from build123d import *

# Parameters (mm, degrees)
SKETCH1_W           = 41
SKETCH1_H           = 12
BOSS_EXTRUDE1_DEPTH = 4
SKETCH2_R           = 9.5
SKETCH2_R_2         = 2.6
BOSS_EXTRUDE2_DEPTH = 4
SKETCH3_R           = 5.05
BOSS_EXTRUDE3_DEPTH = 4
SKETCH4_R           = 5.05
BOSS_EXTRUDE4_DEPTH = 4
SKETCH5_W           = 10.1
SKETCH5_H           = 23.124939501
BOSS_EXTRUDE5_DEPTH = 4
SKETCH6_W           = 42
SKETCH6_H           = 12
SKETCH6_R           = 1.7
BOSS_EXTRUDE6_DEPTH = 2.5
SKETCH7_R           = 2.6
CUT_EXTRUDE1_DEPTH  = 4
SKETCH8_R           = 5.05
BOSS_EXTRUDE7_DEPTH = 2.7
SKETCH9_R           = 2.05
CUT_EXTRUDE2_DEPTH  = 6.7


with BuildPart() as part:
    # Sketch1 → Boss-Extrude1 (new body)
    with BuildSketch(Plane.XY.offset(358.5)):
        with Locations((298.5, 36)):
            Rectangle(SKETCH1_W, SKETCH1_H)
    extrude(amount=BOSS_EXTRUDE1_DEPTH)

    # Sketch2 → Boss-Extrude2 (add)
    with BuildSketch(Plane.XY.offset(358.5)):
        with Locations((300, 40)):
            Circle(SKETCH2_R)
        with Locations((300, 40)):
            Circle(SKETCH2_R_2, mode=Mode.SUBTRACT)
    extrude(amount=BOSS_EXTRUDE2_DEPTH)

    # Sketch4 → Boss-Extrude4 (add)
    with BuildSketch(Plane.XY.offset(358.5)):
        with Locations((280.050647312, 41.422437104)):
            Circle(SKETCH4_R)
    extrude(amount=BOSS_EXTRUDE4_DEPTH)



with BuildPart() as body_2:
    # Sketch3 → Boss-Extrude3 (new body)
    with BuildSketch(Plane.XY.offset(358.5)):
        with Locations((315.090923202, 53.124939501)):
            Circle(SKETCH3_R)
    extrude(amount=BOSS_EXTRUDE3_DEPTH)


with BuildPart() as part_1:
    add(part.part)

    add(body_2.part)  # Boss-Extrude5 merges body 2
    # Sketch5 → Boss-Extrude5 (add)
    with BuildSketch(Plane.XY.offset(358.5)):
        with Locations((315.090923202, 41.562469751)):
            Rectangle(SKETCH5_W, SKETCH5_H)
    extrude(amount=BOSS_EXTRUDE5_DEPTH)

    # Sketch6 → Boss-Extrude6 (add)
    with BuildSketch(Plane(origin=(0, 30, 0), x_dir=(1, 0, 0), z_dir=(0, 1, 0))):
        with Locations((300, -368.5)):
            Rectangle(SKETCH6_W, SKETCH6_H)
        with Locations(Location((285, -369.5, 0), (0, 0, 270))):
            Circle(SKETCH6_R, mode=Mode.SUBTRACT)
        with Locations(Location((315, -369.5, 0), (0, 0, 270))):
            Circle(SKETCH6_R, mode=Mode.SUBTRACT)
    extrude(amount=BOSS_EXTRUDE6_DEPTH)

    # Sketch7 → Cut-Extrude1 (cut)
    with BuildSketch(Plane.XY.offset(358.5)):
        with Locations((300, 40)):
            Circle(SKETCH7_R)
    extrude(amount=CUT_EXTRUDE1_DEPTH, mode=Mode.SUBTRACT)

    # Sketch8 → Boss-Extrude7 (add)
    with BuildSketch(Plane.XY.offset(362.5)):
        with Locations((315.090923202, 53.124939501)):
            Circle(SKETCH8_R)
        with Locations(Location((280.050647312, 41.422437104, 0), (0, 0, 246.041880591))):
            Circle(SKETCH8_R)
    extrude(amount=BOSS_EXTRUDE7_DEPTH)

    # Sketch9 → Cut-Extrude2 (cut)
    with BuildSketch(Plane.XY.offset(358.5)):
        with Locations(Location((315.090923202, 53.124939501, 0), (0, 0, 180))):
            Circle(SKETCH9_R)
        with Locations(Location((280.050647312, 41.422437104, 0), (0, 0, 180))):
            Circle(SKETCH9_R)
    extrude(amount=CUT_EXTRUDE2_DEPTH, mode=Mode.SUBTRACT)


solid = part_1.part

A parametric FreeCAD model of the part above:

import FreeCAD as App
import Part
import Sketcher
from FreeCAD import Vector
Q = App.Units.Quantity


def add_polygon(sketch, points):
    """Adds a closed chain of lines whose ends are joined by coincident constraints."""
    first, n = sketch.GeometryCount, len(points)
    for a, b in zip(points, points[1:] + points[:1]):
        sketch.addGeometry(Part.LineSegment(App.Vector(*a, 0), App.Vector(*b, 0)), False)
    for i in range(n):
        sketch.addConstraint(Sketcher.Constraint("Coincident", first + i, 2, first + (i + 1) % n, 1))

doc = App.newDocument("Part")
params = doc.addObject("Spreadsheet::Sheet", "Params")
for row, (alias, value) in enumerate([
    ("sketch1_width", "41 mm"),
    ("sketch1_height", "12 mm"),
    ("pad1_length", "4 mm"),
    ("sketch2_diameter", "19 mm"),
    ("sketch2_diameter2", "5.2 mm"),
    ("pad2_length", "4 mm"),
    ("sketch3_diameter", "10.1 mm"),
    ("pad3_length", "4 mm"),
    ("sketch4_diameter", "10.1 mm"),
    ("pad4_length", "4 mm"),
    ("sketch5_width", "10.1 mm"),
    ("pad5_length", "4 mm"),
    ("sketch6_diameter", "3.4 mm"),
    ("sketch6_width", "42 mm"),
    ("sketch6_height", "12 mm"),
    ("pad6_length", "2.5 mm"),
    ("sketch7_diameter", "5.2 mm"),
    ("pocket1_length", "4 mm"),
    ("sketch8_diameter", "10.1 mm"),
    ("pad7_length", "2.7 mm"),
    ("sketch9_diameter", "4.1 mm"),
    ("pocket2_length", "6.7 mm"),
], start=1):
    params.set(f"A{row}", alias)
    params.set(f"B{row}", "=" + value)
    params.setAlias(f"B{row}", alias)

body = doc.addObject("PartDesign::Body", "Body")

sketch1 = body.newObject("Sketcher::SketchObject", "Sketch")
sketch1.AttachmentSupport = (doc.getObject("XY_Plane"), [""])
sketch1.MapMode = "FlatFace"
sketch1.AttachmentOffset = App.Placement(Vector(0, 0, 358.5), App.Rotation())
add_polygon(sketch1, [(278, 42), (278, 30), (319, 30), (319, 42)])
sketch1.addConstraint([
    Sketcher.Constraint("Vertical", 0),
    Sketcher.Constraint("Horizontal", 1),
    Sketcher.Constraint("Vertical", 2),
    Sketcher.Constraint("Horizontal", 3),
    Sketcher.Constraint("DistanceX", 1, 1, 1, 2, Q("41 mm")),
    Sketcher.Constraint("DistanceY", 0, 2, 0, 1, Q("12 mm")),
    Sketcher.Constraint("DistanceX", -1, 1, 0, 2, Q("278 mm")),
    Sketcher.Constraint("DistanceY", -1, 1, 0, 2, Q("30 mm")),
])
sketch1.setExpression("Constraints[8]", "Params.sketch1_width")
sketch1.setExpression("Constraints[9]", "Params.sketch1_height")
pad1 = body.newObject("PartDesign::Pad", "Pad")
pad1.Profile = sketch1
pad1.setExpression("Length", "Params.pad1_length")

sketch2 = body.newObject("Sketcher::SketchObject", "Sketch001")
sketch2.AttachmentSupport = (doc.getObject("XY_Plane"), [""])
sketch2.MapMode = "FlatFace"
sketch2.AttachmentOffset = App.Placement(Vector(0, 0, 358.5), App.Rotation())
sketch2.addGeometry([
    Part.Circle(Vector(300, 40, 0), Vector(0, 0, 1), 9.5),
    Part.Circle(Vector(300, 40, 0), Vector(0, 0, 1), 2.6),
], False)
sketch2.addConstraint([
    Sketcher.Constraint("Coincident", 1, 3, 0, 3),
    Sketcher.Constraint("Diameter", 0, Q("19 mm")),
    Sketcher.Constraint("Diameter", 1, Q("5.2 mm")),
    Sketcher.Constraint("DistanceX", -1, 1, 0, 3, Q("300 mm")),
    Sketcher.Constraint("DistanceY", -1, 1, 0, 3, Q("40 mm")),
])
sketch2.setExpression("Constraints[1]", "Params.sketch2_diameter")
sketch2.setExpression("Constraints[2]", "Params.sketch2_diameter2")
pad2 = body.newObject("PartDesign::Pad", "Pad001")
pad2.Profile = sketch2
pad2.setExpression("Length", "Params.pad2_length")

sketch3 = body.newObject("Sketcher::SketchObject", "Sketch002")
sketch3.AttachmentSupport = (doc.getObject("XY_Plane"), [""])
sketch3.MapMode = "FlatFace"
sketch3.AttachmentOffset = App.Placement(Vector(0, 0, 358.5), App.Rotation())
sketch3.addGeometry(Part.Circle(Vector(280, 41, 0), Vector(0, 0, 1), 5), False)
sketch3.addConstraint([
    Sketcher.Constraint("Diameter", 0, Q("10.1 mm")),
    Sketcher.Constraint("DistanceX", -1, 1, 0, 3, Q("280.050647 mm")),
    Sketcher.Constraint("DistanceY", -1, 1, 0, 3, Q("41.422437 mm")),
])
sketch3.setExpression("Constraints[0]", "Params.sketch3_diameter")
pad3 = body.newObject("PartDesign::Pad", "Pad002")
pad3.Profile = sketch3
pad3.setExpression("Length", "Params.pad3_length")
body2 = doc.addObject("PartDesign::Body", "Body001")

sketch4 = body2.newObject("Sketcher::SketchObject", "Sketch003")
sketch4.AttachmentSupport = (doc.getObject("XY_Plane001"), [""])
sketch4.MapMode = "FlatFace"
sketch4.AttachmentOffset = App.Placement(Vector(0, 0, 358.5), App.Rotation())
sketch4.addGeometry(Part.Circle(Vector(315, 53, 0), Vector(0, 0, 1), 5), False)
sketch4.addConstraint([
    Sketcher.Constraint("Diameter", 0, Q("10.1 mm")),
    Sketcher.Constraint("DistanceY", -1, 1, 0, 3, Q("53.12494 mm")),
    Sketcher.Constraint("DistanceX", -1, 1, 0, 3, Q("315.090923 mm")),
])
sketch4.setExpression("Constraints[0]", "Params.sketch4_diameter")
pad4 = body2.newObject("PartDesign::Pad", "Pad003")
pad4.Profile = sketch4
pad4.setExpression("Length", "Params.pad4_length")
body.AllowCompound = True
doc.recompute()

boolean = body.newObject("PartDesign::Boolean", "Boolean")
boolean.Type = "Fuse"
boolean.addObjects([body2])

sketch5 = body.newObject("Sketcher::SketchObject", "Sketch004")
sketch5.AttachmentSupport = (doc.getObject("XY_Plane"), [""])
sketch5.MapMode = "FlatFace"
sketch5.AttachmentOffset = App.Placement(Vector(0, 0, 358.5), App.Rotation())
add_polygon(sketch5, [(310, 53), (310, 30), (320, 30), (320, 53)])
sketch5.addConstraint([
    Sketcher.Constraint("Vertical", 0),
    Sketcher.Constraint("Horizontal", 1),
    Sketcher.Constraint("Vertical", 2),
    Sketcher.Constraint("Horizontal", 3),
    Sketcher.Constraint("DistanceX", 1, 1, 1, 2, Q("10.1 mm")),
    Sketcher.Constraint("DistanceY", -1, 1, 0, 2, Q("30 mm")),
    Sketcher.Constraint("DistanceY", 0, 2, 0, 1, Q("23.12494 mm")),
    Sketcher.Constraint("DistanceX", -1, 1, 0, 2, Q("310.040923 mm")),
])
sketch5.setExpression("Constraints[8]", "Params.sketch5_width")
pad5 = body.newObject("PartDesign::Pad", "Pad004")
pad5.Profile = sketch5
pad5.setExpression("Length", "Params.pad5_length")

sketch6 = body.newObject("Sketcher::SketchObject", "Sketch005")
sketch6.AttachmentSupport = (doc.getObject("XZ_Plane"), [""])
sketch6.MapMode = "FlatFace"
sketch6.AttachmentOffset = App.Placement(Vector(0, 0, -30), App.Rotation())
add_polygon(sketch6, [(279, 362.5), (279, 374.5), (321, 374.5), (321, 362.5)])
sketch6.addGeometry(Part.Circle(Vector(285, 369.5, 0), Vector(0, 0, 1), 1.7), False)
sketch6.addGeometry(Part.Circle(Vector(315, 369.5, 0), Vector(0, 0, 1), 1.7), False)
sketch6.addConstraint([
    Sketcher.Constraint("Vertical", 0),
    Sketcher.Constraint("Horizontal", 1),
    Sketcher.Constraint("Vertical", 2),
    Sketcher.Constraint("Horizontal", 3),
    Sketcher.Constraint("Equal", 4, 5),
    Sketcher.Constraint("Horizontal", 4, 3, 5, 3),
    Sketcher.Constraint("Diameter", 4, Q("3.4 mm")),
    Sketcher.Constraint("DistanceX", 1, 1, 1, 2, Q("42 mm")),
    Sketcher.Constraint("DistanceY", 0, 1, 0, 2, Q("12 mm")),
    Sketcher.Constraint("DistanceX", -1, 1, 4, 3, Q("285 mm")),
    Sketcher.Constraint("DistanceX", -1, 1, 5, 3, Q("315 mm")),
    Sketcher.Constraint("DistanceX", -1, 1, 0, 2, Q("279 mm")),
    Sketcher.Constraint("DistanceY", 4, 3, 0, 2, Q("5 mm")),
    Sketcher.Constraint("DistanceY", -1, 1, 4, 3, Q("369.5 mm")),
])
sketch6.setExpression("Constraints[10]", "Params.sketch6_diameter")
sketch6.setExpression("Constraints[11]", "Params.sketch6_width")
sketch6.setExpression("Constraints[12]", "Params.sketch6_height")
pad6 = body.newObject("PartDesign::Pad", "Pad005")
pad6.Profile = sketch6
pad6.setExpression("Length", "Params.pad6_length")
pad6.Reversed = True

sketch7 = body.newObject("Sketcher::SketchObject", "Sketch006")
sketch7.AttachmentSupport = (doc.getObject("XY_Plane"), [""])
sketch7.MapMode = "FlatFace"
sketch7.AttachmentOffset = App.Placement(Vector(0, 0, 358.5), App.Rotation())
sketch7.addGeometry(Part.Circle(Vector(300, 40, 0), Vector(0, 0, 1), 2.6), False)
sketch7.addConstraint([
    Sketcher.Constraint("Diameter", 0, Q("5.2 mm")),
    Sketcher.Constraint("DistanceX", -1, 1, 0, 3, Q("300 mm")),
    Sketcher.Constraint("DistanceY", -1, 1, 0, 3, Q("40 mm")),
])
sketch7.setExpression("Constraints[0]", "Params.sketch7_diameter")
pocket1 = body.newObject("PartDesign::Pocket", "Pocket")
pocket1.Profile = sketch7
pocket1.setExpression("Length", "Params.pocket1_length")
pocket1.Reversed = True

sketch8 = body.newObject("Sketcher::SketchObject", "Sketch007")
sketch8.AttachmentSupport = (doc.getObject("XY_Plane"), [""])
sketch8.MapMode = "FlatFace"
sketch8.AttachmentOffset = App.Placement(Vector(0, 0, 362.5), App.Rotation())
sketch8.addGeometry([
    Part.Circle(Vector(315, 53, 0), Vector(0, 0, 1), 5),
    Part.Circle(Vector(280, 41, 0), Vector(0, 0, 1), 5),
], False)
sketch8.addConstraint([
    Sketcher.Constraint("Equal", 0, 1),
    Sketcher.Constraint("Diameter", 0, Q("10.1 mm")),
    Sketcher.Constraint("DistanceY", -1, 1, 0, 3, Q("53.12494 mm")),
    Sketcher.Constraint("DistanceX", -1, 1, 0, 3, Q("315.090923 mm")),
    Sketcher.Constraint("DistanceX", -1, 1, 1, 3, Q("280.050647 mm")),
    Sketcher.Constraint("DistanceY", -1, 1, 1, 3, Q("41.422437 mm")),
])
sketch8.setExpression("Constraints[1]", "Params.sketch8_diameter")
pad7 = body.newObject("PartDesign::Pad", "Pad006")
pad7.Profile = sketch8
pad7.setExpression("Length", "Params.pad7_length")

sketch9 = body.newObject("Sketcher::SketchObject", "Sketch008")
sketch9.AttachmentSupport = (doc.getObject("XY_Plane"), [""])
sketch9.MapMode = "FlatFace"
sketch9.AttachmentOffset = App.Placement(Vector(0, 0, 358.5), App.Rotation())
sketch9.addGeometry([
    Part.Circle(Vector(315.1, 53.1, 0), Vector(0, 0, 1), 2),
    Part.Circle(Vector(280.1, 41.4, 0), Vector(0, 0, 1), 2),
], False)
sketch9.addConstraint([
    Sketcher.Constraint("Equal", 0, 1),
    Sketcher.Constraint("Diameter", 0, Q("4.1 mm")),
    Sketcher.Constraint("DistanceY", -1, 1, 0, 3, Q("53.12494 mm")),
    Sketcher.Constraint("DistanceX", -1, 1, 0, 3, Q("315.090923 mm")),
    Sketcher.Constraint("DistanceX", -1, 1, 1, 3, Q("280.050647 mm")),
    Sketcher.Constraint("DistanceY", -1, 1, 1, 3, Q("41.422437 mm")),
])
sketch9.setExpression("Constraints[1]", "Params.sketch9_diameter")
pocket2 = body.newObject("PartDesign::Pocket", "Pocket001")
pocket2.Profile = sketch9
pocket2.setExpression("Length", "Params.pocket2_length")
pocket2.Reversed = True

doc.recompute()
